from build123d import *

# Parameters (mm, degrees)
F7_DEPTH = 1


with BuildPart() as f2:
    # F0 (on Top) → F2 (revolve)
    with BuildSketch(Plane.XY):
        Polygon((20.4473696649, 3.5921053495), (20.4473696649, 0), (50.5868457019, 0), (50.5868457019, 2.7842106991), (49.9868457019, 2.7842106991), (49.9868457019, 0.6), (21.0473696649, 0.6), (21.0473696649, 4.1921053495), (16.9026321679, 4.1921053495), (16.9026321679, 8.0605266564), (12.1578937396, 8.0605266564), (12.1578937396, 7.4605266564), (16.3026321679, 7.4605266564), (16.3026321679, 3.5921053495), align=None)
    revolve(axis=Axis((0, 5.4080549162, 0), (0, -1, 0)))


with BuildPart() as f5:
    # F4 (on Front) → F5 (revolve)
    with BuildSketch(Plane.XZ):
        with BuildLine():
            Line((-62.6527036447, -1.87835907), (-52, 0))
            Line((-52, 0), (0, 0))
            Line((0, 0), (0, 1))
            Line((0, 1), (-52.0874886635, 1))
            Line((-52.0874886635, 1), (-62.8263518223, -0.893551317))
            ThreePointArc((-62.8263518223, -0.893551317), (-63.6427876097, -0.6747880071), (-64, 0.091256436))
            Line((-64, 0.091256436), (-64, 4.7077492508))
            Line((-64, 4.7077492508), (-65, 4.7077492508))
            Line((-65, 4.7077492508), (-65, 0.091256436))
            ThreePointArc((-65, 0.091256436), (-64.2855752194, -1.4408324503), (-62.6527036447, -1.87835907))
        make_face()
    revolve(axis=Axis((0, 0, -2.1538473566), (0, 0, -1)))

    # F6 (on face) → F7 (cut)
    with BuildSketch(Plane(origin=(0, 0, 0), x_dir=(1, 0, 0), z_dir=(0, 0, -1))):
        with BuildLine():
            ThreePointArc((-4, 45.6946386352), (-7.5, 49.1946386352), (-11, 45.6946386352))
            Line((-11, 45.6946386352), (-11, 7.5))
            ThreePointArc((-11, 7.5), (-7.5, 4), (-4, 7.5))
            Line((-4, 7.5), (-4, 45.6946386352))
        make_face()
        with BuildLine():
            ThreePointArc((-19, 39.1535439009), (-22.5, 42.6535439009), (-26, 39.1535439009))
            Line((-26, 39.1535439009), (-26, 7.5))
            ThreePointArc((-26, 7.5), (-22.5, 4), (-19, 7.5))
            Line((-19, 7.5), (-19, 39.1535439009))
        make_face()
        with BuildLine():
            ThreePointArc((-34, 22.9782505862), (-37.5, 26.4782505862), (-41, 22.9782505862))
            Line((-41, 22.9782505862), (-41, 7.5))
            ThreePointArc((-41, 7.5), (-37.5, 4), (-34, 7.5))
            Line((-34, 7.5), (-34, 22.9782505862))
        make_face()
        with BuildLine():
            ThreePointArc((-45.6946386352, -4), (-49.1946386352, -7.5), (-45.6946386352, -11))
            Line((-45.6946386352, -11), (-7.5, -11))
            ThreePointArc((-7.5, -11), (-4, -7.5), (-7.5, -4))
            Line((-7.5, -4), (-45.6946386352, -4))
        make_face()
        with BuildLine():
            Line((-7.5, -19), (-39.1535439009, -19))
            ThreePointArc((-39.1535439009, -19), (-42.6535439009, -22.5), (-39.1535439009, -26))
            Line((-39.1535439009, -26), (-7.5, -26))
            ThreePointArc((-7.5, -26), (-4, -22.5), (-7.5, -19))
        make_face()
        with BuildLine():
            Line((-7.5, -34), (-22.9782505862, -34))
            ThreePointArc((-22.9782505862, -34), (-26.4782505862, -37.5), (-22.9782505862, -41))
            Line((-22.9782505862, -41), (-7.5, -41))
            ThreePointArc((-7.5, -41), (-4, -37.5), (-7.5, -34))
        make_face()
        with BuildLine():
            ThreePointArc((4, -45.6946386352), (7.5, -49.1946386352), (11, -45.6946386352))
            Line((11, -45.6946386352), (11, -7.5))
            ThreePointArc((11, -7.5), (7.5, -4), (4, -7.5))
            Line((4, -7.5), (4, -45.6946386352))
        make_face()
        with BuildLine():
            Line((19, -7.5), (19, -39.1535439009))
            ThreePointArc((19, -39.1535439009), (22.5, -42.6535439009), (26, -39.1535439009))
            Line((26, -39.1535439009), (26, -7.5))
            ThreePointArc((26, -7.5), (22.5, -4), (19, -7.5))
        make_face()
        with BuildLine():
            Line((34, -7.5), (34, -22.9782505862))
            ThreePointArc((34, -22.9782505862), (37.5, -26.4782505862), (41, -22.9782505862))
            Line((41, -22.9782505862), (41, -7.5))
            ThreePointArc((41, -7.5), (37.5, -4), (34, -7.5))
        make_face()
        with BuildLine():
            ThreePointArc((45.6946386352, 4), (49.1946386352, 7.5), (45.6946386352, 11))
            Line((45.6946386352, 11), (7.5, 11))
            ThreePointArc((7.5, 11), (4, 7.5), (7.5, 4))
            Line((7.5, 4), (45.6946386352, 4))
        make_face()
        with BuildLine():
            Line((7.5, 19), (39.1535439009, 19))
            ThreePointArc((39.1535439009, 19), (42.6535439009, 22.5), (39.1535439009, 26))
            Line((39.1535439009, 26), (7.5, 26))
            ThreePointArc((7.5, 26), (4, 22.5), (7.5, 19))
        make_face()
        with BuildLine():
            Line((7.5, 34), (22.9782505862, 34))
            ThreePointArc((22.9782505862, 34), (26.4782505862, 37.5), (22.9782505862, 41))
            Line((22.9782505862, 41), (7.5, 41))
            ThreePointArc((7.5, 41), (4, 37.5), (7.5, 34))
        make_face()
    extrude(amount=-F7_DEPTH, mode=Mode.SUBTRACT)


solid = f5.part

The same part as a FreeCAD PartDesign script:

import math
import FreeCAD as App
import Part
import Sketcher
from FreeCAD import Vector
Q = App.Units.Quantity


def add_polygon(sketch, points):
    """Adds a closed chain of lines whose ends are joined by coincident constraints."""
    first, n = sketch.GeometryCount, len(points)
    for a, b in zip(points, points[1:] + points[:1]):
        sketch.addGeometry(Part.LineSegment(App.Vector(*a, 0), App.Vector(*b, 0)), False)
    for i in range(n):
        sketch.addConstraint(Sketcher.Constraint("Coincident", first + i, 2, first + (i + 1) % n, 1))

doc = App.newDocument("Part")
body = doc.addObject("PartDesign::Body", "Body")

# Sketch on XY plane
sketch1 = body.newObject("Sketcher::SketchObject", "Sketch")
sketch1.AttachmentSupport = (doc.getObject("XY_Plane"), [""])
sketch1.MapMode = "FlatFace"
add_polygon(sketch1, [(20.4, 3.6), (20.4, 0), (50.6, 0), (50.6, 2.8), (50, 2.8), (50, 0.6), (21, 0.6), (21, 4.2), (16.9, 4.2), (16.9, 8.1), (12.2, 8.1), (12.2, 7.5), (16.3, 7.5), (16.3, 3.6)])  # lines 0-13
sketch1.addConstraint(Sketcher.Constraint("Vertical", 0))
sketch1.addConstraint(Sketcher.Constraint("Horizontal", 1))
sketch1.addConstraint(Sketcher.Constraint("Vertical", 2))
sketch1.addConstraint(Sketcher.Constraint("Horizontal", 3))
sketch1.addConstraint(Sketcher.Constraint("Vertical", 4))
sketch1.addConstraint(Sketcher.Constraint("Horizontal", 5))
sketch1.addConstraint(Sketcher.Constraint("Vertical", 6))
sketch1.addConstraint(Sketcher.Constraint("Horizontal", 7))
sketch1.addConstraint(Sketcher.Constraint("Vertical", 8))
sketch1.addConstraint(Sketcher.Constraint("Horizontal", 9))
sketch1.addConstraint(Sketcher.Constraint("Vertical", 10))
sketch1.addConstraint(Sketcher.Constraint("Horizontal", 11))
sketch1.addConstraint(Sketcher.Constraint("Vertical", 12))
sketch1.addConstraint(Sketcher.Constraint("Horizontal", 13))
sketch1.addConstraint(Sketcher.Constraint("PointOnObject", 0, 2, -1))
sketch1.addConstraint(Sketcher.Constraint("Equal", 7, 11))
sketch1.addConstraint(Sketcher.Constraint("Equal", 11, 13))
sketch1.addConstraint(Sketcher.Constraint("Equal", 0, 6))
sketch1.addConstraint(Sketcher.Constraint("Equal", 3, 10))
sketch1.addConstraint(Sketcher.Constraint("Equal", 8, 12))
sketch1.addConstraint(Sketcher.Constraint("DistanceX", 3, 2, 3, 1, 0.6))
sketch1.addConstraint(Sketcher.Constraint("DistanceX", 0, 2, 5, 2, 0.6))
sketch1.addConstraint(Sketcher.Constraint("DistanceX", 9, 2, 9, 1, 4.744738))
sketch1.addConstraint(Sketcher.Constraint("DistanceY", 2, 1, 2, 2, 2.784211))
sketch1.addConstraint(Sketcher.Constraint("DistanceY", 8, 1, 8, 2, 3.868421))
sketch1.addConstraint(Sketcher.Constraint("DistanceX", 1, 1, 1, 2, 30.139476))
sketch1.addConstraint(Sketcher.Constraint("DistanceY", 0, 2, 0, 1, 3.592105))
sketch1.addConstraint(Sketcher.Constraint("DistanceX", -1, 1, 0, 2, 20.44737))
revolution = body.newObject("PartDesign::Revolution", "Revolution")
revolution.Profile = sketch1
revolution.ReferenceAxis = (sketch1, ["V_Axis"])
revolution.Angle = 360
body2 = doc.addObject("PartDesign::Body", "Body001")

# Sketch on XZ plane
sketch2 = body2.newObject("Sketcher::SketchObject", "Sketch001")
sketch2.AttachmentSupport = (doc.getObject("XZ_Plane001"), [""])
sketch2.MapMode = "FlatFace"
sketch2.addGeometry(Part.LineSegment(Vector(-62.7, -1.9, 0), Vector(-52, 0, 0)), False)
sketch2.addGeometry(Part.LineSegment(Vector(-52, 0, 0), Vector(0, 0, 0)), False)
sketch2.addGeometry(Part.LineSegment(Vector(0, 0, 0), Vector(0, 1, 0)), False)
sketch2.addGeometry(Part.LineSegment(Vector(0, 1, 0), Vector(-52.1, 1, 0)), False)
sketch2.addGeometry(Part.LineSegment(Vector(-52.1, 1, 0), Vector(-62.8, -0.9, 0)), False)
sketch2.addGeometry(Part.ArcOfCircle(Part.Circle(Vector(-63, 0.1, 0), Vector(0, 0, 1), 1), math.radians(180), math.radians(280)), False)
sketch2.addGeometry(Part.LineSegment(Vector(-64, 0.1, 0), Vector(-64, 4.7, 0)), False)
sketch2.addGeometry(Part.LineSegment(Vector(-64, 4.7, 0), Vector(-65, 4.7, 0)), False)
sketch2.addGeometry(Part.LineSegment(Vector(-65, 4.7, 0), Vector(-65, 0.1, 0)), False)
sketch2.addGeometry(Part.ArcOfCircle(Part.Circle(Vector(-63, 0.1, 0), Vector(0, 0, 1), 2), math.radians(180), math.radians(280)), False)
sketch2.addConstraint(Sketcher.Constraint("Coincident", 0, 2, 1, 1))
sketch2.addConstraint(Sketcher.Constraint("Coincident", 1, 2, 2, 1))
sketch2.addConstraint(Sketcher.Constraint("Coincident", 2, 2, 3, 1))
sketch2.addConstraint(Sketcher.Constraint("Coincident", 3, 2, 4, 1))
sketch2.addConstraint(Sketcher.Constraint("Tangent", 4, 2, 5, 2))
sketch2.addConstraint(Sketcher.Constraint("Tangent", 5, 1, 6, 1))
sketch2.addConstraint(Sketcher.Constraint("Coincident", 6, 2, 7, 1))
sketch2.addConstraint(Sketcher.Constraint("Coincident", 7, 2, 8, 1))
sketch2.addConstraint(Sketcher.Constraint("Tangent", 8, 2, 9, 1))
sketch2.addConstraint(Sketcher.Constraint("Tangent", 9, 2, 0, 1))
sketch2.addConstraint(Sketcher.Constraint("Horizontal", 1))
sketch2.addConstraint(Sketcher.Constraint("Vertical", 2))
sketch2.addConstraint(Sketcher.Constraint("Horizontal", 3))
sketch2.addConstraint(Sketcher.Constraint("Vertical", 6))
sketch2.addConstraint(Sketcher.Constraint("Horizontal", 7))
sketch2.addConstraint(Sketcher.Constraint("Vertical", 8))
sketch2.addConstraint(Sketcher.Constraint("Coincident", 1, 2, -1, 1))
sketch2.addConstraint(Sketcher.Constraint("Coincident", 9, 3, 5, 3))
sketch2.addConstraint(Sketcher.Constraint("Parallel", 0, 4))
sketch2.addConstraint(Sketcher.Constraint("Equal", 7, 2))
sketch2.addConstraint(Sketcher.Constraint("Radius", 5, 1.0))
sketch2.addConstraint(Sketcher.Constraint("Radius", 9, 2.0))
sketch2.addConstraint(Sketcher.Constraint("DistanceX", 1, 1, 1, 2, 52.0))
sketch2.addConstraint(Sketcher.Constraint("Angle", 0, Q("10 deg")))
sketch2.addConstraint(Sketcher.Constraint("DistanceX", 5, 3, -1, 1, 63.0))
sketch2.addConstraint(Sketcher.Constraint("DistanceY", 4, 2, 6, 2, 5.601301))
revolution2 = body2.newObject("PartDesign::Revolution", "Revolution001")
revolution2.Profile = sketch2
revolution2.ReferenceAxis = (sketch2, ["V_Axis"])
revolution2.Angle = 360

# Sketch on XY plane
sketch3 = body2.newObject("Sketcher::SketchObject", "Sketch002")
sketch3.AttachmentSupport = (doc.getObject("XY_Plane001"), [""])
sketch3.MapMode = "FlatFace"
sketch3.addGeometry(Part.ArcOfCircle(Part.Circle(Vector(-7.5, -45.7, 0), Vector(0, 0, 1), 3.5), math.radians(180), math.radians(360)), False)
sketch3.addGeometry(Part.LineSegment(Vector(-11, -45.7, 0), Vector(-11, -7.5, 0)), False)
sketch3.addGeometry(Part.ArcOfCircle(Part.Circle(Vector(-7.5, -7.5, 0), Vector(0, 0, 1), 3.5), math.radians(0), math.radians(180)), False)
sketch3.addGeometry(Part.LineSegment(Vector(-4, -7.5, 0), Vector(-4, -45.7, 0)), False)
sketch3.addGeometry(Part.ArcOfCircle(Part.Circle(Vector(-22.5, -39.2, 0), Vector(0, 0, 1), 3.5), math.radians(180), math.radians(360)), False)
sketch3.addGeometry(Part.LineSegment(Vector(-26, -39.2, 0), Vector(-26, -7.5, 0)), False)
sketch3.addGeometry(Part.ArcOfCircle(Part.Circle(Vector(-22.5, -7.5, 0), Vector(0, 0, 1), 3.5), math.radians(0), math.radians(180)), False)
sketch3.addGeometry(Part.LineSegment(Vector(-19, -7.5, 0), Vector(-19, -39.2, 0)), False)
sketch3.addGeometry(Part.ArcOfCircle(Part.Circle(Vector(-37.5, -23, 0), Vector(0, 0, 1), 3.5), math.radians(180), math.radians(360)), False)
sketch3.addGeometry(Part.LineSegment(Vector(-41, -23, 0), Vector(-41, -7.5, 0)), False)
sketch3.addGeometry(Part.ArcOfCircle(Part.Circle(Vector(-37.5, -7.5, 0), Vector(0, 0, 1), 3.5), math.radians(0), math.radians(180)), False)
sketch3.addGeometry(Part.LineSegment(Vector(-34, -7.5, 0), Vector(-34, -23, 0)), False)
sketch3.addGeometry(Part.ArcOfCircle(Part.Circle(Vector(-45.7, 7.5, 0), Vector(0, 0, 1), 3.5), math.radians(90), math.radians(270)), False)
sketch3.addGeometry(Part.LineSegment(Vector(-45.7, 11, 0), Vector(-7.5, 11, 0)), False)
sketch3.addGeometry(Part.ArcOfCircle(Part.Circle(Vector(-7.5, 7.5, 0), Vector(0, 0, 1), 3.5), math.radians(-90), math.radians(90)), False)
sketch3.addGeometry(Part.LineSegment(Vector(-7.5, 4, 0), Vector(-45.7, 4, 0)), False)
sketch3.addGeometry(Part.LineSegment(Vector(-7.5, 19, 0), Vector(-39.2, 19, 0)), False)
sketch3.addGeometry(Part.ArcOfCircle(Part.Circle(Vector(-39.2, 22.5, 0), Vector(0, 0, 1), 3.5), math.radians(90), math.radians(270)), False)
sketch3.addGeometry(Part.LineSegment(Vector(-39.2, 26, 0), Vector(-7.5, 26, 0)), False)
sketch3.addGeometry(Part.ArcOfCircle(Part.Circle(Vector(-7.5, 22.5, 0), Vector(0, 0, 1), 3.5), math.radians(-90), math.radians(90)), False)
sketch3.addGeometry(Part.LineSegment(Vector(-7.5, 34, 0), Vector(-23, 34, 0)), False)
sketch3.addGeometry(Part.ArcOfCircle(Part.Circle(Vector(-23, 37.5, 0), Vector(0, 0, 1), 3.5), math.radians(90), math.radians(270)), False)
sketch3.addGeometry(Part.LineSegment(Vector(-23, 41, 0), Vector(-7.5, 41, 0)), False)
sketch3.addGeometry(Part.ArcOfCircle(Part.Circle(Vector(-7.5, 37.5, 0), Vector(0, 0, 1), 3.5), math.radians(-90), math.radians(90)), False)
sketch3.addGeometry(Part.ArcOfCircle(Part.Circle(Vector(7.5, 45.7, 0), Vector(0, 0, 1), 3.5), math.radians(0), math.radians(180)), False)
sketch3.addGeometry(Part.LineSegment(Vector(11, 45.7, 0), Vector(11, 7.5, 0)), False)
sketch3.addGeometry(Part.ArcOfCircle(Part.Circle(Vector(7.5, 7.5, 0), Vector(0, 0, 1), 3.5), math.radians(180), math.radians(360)), False)
sketch3.addGeometry(Part.LineSegment(Vector(4, 7.5, 0), Vector(4, 45.7, 0)), False)
sketch3.addGeometry(Part.LineSegment(Vector(19, 7.5, 0), Vector(19, 39.2, 0)), False)
sketch3.addGeometry(Part.ArcOfCircle(Part.Circle(Vector(22.5, 39.2, 0), Vector(0, 0, 1), 3.5), math.radians(0), math.radians(180)), False)
sketch3.addGeometry(Part.LineSegment(Vector(26, 39.2, 0), Vector(26, 7.5, 0)), False)
sketch3.addGeometry(Part.ArcOfCircle(Part.Circle(Vector(22.5, 7.5, 0), Vector(0, 0, 1), 3.5), math.radians(180), math.radians(360)), False)
sketch3.addGeometry(Part.LineSegment(Vector(34, 7.5, 0), Vector(34, 23, 0)), False)
sketch3.addGeometry(Part.ArcOfCircle(Part.Circle(Vector(37.5, 23, 0), Vector(0, 0, 1), 3.5), math.radians(0), math.radians(180)), False)
sketch3.addGeometry(Part.LineSegment(Vector(41, 23, 0), Vector(41, 7.5, 0)), False)
sketch3.addGeometry(Part.ArcOfCircle(Part.Circle(Vector(37.5, 7.5, 0), Vector(0, 0, 1), 3.5), math.radians(180), math.radians(360)), False)
sketch3.addGeometry(Part.ArcOfCircle(Part.Circle(Vector(45.7, -7.5, 0), Vector(0, 0, 1), 3.5), math.radians(-90), math.radians(90)), False)
sketch3.addGeometry(Part.LineSegment(Vector(45.7, -11, 0), Vector(7.5, -11, 0)), False)
sketch3.addGeometry(Part.ArcOfCircle(Part.Circle(Vector(7.5, -7.5, 0), Vector(0, 0, 1), 3.5), math.radians(90), math.radians(270)), False)
sketch3.addGeometry(Part.LineSegment(Vector(7.5, -4, 0), Vector(45.7, -4, 0)), False)
sketch3.addGeometry(Part.LineSegment(Vector(7.5, -19, 0), Vector(39.2, -19, 0)), False)
sketch3.addGeometry(Part.ArcOfCircle(Part.Circle(Vector(39.2, -22.5, 0), Vector(0, 0, 1), 3.5), math.radians(-90), math.radians(90)), False)
sketch3.addGeometry(Part.LineSegment(Vector(39.2, -26, 0), Vector(7.5, -26, 0)), False)
sketch3.addGeometry(Part.ArcOfCircle(Part.Circle(Vector(7.5, -22.5, 0), Vector(0, 0, 1), 3.5), math.radians(90), math.radians(270)), False)
sketch3.addGeometry(Part.LineSegment(Vector(7.5, -34, 0), Vector(23, -34, 0)), False)
sketch3.addGeometry(Part.ArcOfCircle(Part.Circle(Vector(23, -37.5, 0), Vector(0, 0, 1), 3.5), math.radians(-90), math.radians(90)), False)
sketch3.addGeometry(Part.LineSegment(Vector(23, -41, 0), Vector(7.5, -41, 0)), False)
sketch3.addGeometry(Part.ArcOfCircle(Part.Circle(Vector(7.5, -37.5, 0), Vector(0, 0, 1), 3.5), math.radians(90), math.radians(270)), False)
sketch3.addConstraint(Sketcher.Constraint("Tangent", 0, 1, 1, 1))
sketch3.addConstraint(Sketcher.Constraint("Tangent", 1, 2, 2, 2))
sketch3.addConstraint(Sketcher.Constraint("Tangent", 2, 1, 3, 1))
sketch3.addConstraint(Sketcher.Constraint("Tangent", 3, 2, 0, 2))
sketch3.addConstraint(Sketcher.Constraint("Tangent", 4, 1, 5, 1))
sketch3.addConstraint(Sketcher.Constraint("Tangent", 5, 2, 6, 2))
sketch3.addConstraint(Sketcher.Constraint("Tangent", 6, 1, 7, 1))
sketch3.addConstraint(Sketcher.Constraint("Tangent", 7, 2, 4, 2))
sketch3.addConstraint(Sketcher.Constraint("Tangent", 8, 1, 9, 1))
sketch3.addConstraint(Sketcher.Constraint("Tangent", 9, 2, 10, 2))
sketch3.addConstraint(Sketcher.Constraint("Tangent", 10, 1, 11, 1))
sketch3.addConstraint(Sketcher.Constraint("Tangent", 11, 2, 8, 2))
sketch3.addConstraint(Sketcher.Constraint("Tangent", 12, 1, 13, 1))
sketch3.addConstraint(Sketcher.Constraint("Tangent", 13, 2, 14, 2))
sketch3.addConstraint(Sketcher.Constraint("Tangent", 14, 1, 15, 1))
sketch3.addConstraint(Sketcher.Constraint("Tangent", 15, 2, 12, 2))
sketch3.addConstraint(Sketcher.Constraint("Tangent", 16, 2, 17, 2))
sketch3.addConstraint(Sketcher.Constraint("Tangent", 17, 1, 18, 1))
sketch3.addConstraint(Sketcher.Constraint("Tangent", 18, 2, 19, 2))
sketch3.addConstraint(Sketcher.Constraint("Tangent", 19, 1, 16, 1))
sketch3.addConstraint(Sketcher.Constraint("Tangent", 20, 2, 21, 2))
sketch3.addConstraint(Sketcher.Constraint("Tangent", 21, 1, 22, 1))
sketch3.addConstraint(Sketcher.Constraint("Tangent", 22, 2, 23, 2))
sketch3.addConstraint(Sketcher.Constraint("Tangent", 23, 1, 20, 1))
sketch3.addConstraint(Sketcher.Constraint("Tangent", 24, 1, 25, 1))
sketch3.addConstraint(Sketcher.Constraint("Tangent", 25, 2, 26, 2))
sketch3.addConstraint(Sketcher.Constraint("Tangent", 26, 1, 27, 1))
sketch3.addConstraint(Sketcher.Constraint("Tangent", 27, 2, 24, 2))
sketch3.addConstraint(Sketcher.Constraint("Tangent", 28, 2, 29, 2))
sketch3.addConstraint(Sketcher.Constraint("Tangent", 29, 1, 30, 1))
sketch3.addConstraint(Sketcher.Constraint("Tangent", 30, 2, 31, 2))
sketch3.addConstraint(Sketcher.Constraint("Tangent", 31, 1, 28, 1))
sketch3.addConstraint(Sketcher.Constraint("Tangent", 32, 2, 33, 2))
sketch3.addConstraint(Sketcher.Constraint("Tangent", 33, 1, 34, 1))
sketch3.addConstraint(Sketcher.Constraint("Tangent", 34, 2, 35, 2))
sketch3.addConstraint(Sketcher.Constraint("Tangent", 35, 1, 32, 1))
sketch3.addConstraint(Sketcher.Constraint("Tangent", 36, 1, 37, 1))
sketch3.addConstraint(Sketcher.Constraint("Tangent", 37, 2, 38, 2))
sketch3.addConstraint(Sketcher.Constraint("Tangent", 38, 1, 39, 1))
sketch3.addConstraint(Sketcher.Constraint("Tangent", 39, 2, 36, 2))
sketch3.addConstraint(Sketcher.Constraint("Tangent", 40, 2, 41, 2))
sketch3.addConstraint(Sketcher.Constraint("Tangent", 41, 1, 42, 1))
sketch3.addConstraint(Sketcher.Constraint("Tangent", 42, 2, 43, 2))
sketch3.addConstraint(Sketcher.Constraint("Tangent", 43, 1, 40, 1))
sketch3.addConstraint(Sketcher.Constraint("Tangent", 44, 2, 45, 2))
sketch3.addConstraint(Sketcher.Constraint("Tangent", 45, 1, 46, 1))
sketch3.addConstraint(Sketcher.Constraint("Tangent", 46, 2, 47, 2))
sketch3.addConstraint(Sketcher.Constraint("Tangent", 47, 1, 44, 1))
sketch3.addConstraint(Sketcher.Constraint("Vertical", 1))
sketch3.addConstraint(Sketcher.Constraint("Vertical", 3))
sketch3.addConstraint(Sketcher.Constraint("Vertical", 5))
sketch3.addConstraint(Sketcher.Constraint("Vertical", 7))
sketch3.addConstraint(Sketcher.Constraint("Vertical", 9))
sketch3.addConstraint(Sketcher.Constraint("Vertical", 11))
sketch3.addConstraint(Sketcher.Constraint("Horizontal", 13))
sketch3.addConstraint(Sketcher.Constraint("Horizontal", 15))
sketch3.addConstraint(Sketcher.Constraint("Horizontal", 16))
sketch3.addConstraint(Sketcher.Constraint("Horizontal", 18))
sketch3.addConstraint(Sketcher.Constraint("Horizontal", 20))
sketch3.addConstraint(Sketcher.Constraint("Horizontal", 22))
sketch3.addConstraint(Sketcher.Constraint("Vertical", 25))
sketch3.addConstraint(Sketcher.Constraint("Vertical", 27))
sketch3.addConstraint(Sketcher.Constraint("Vertical", 28))
sketch3.addConstraint(Sketcher.Constraint("Vertical", 30))
sketch3.addConstraint(Sketcher.Constraint("Vertical", 32))
sketch3.addConstraint(Sketcher.Constraint("Vertical", 34))
sketch3.addConstraint(Sketcher.Constraint("Horizontal", 37))
sketch3.addConstraint(Sketcher.Constraint("Horizontal", 39))
sketch3.addConstraint(Sketcher.Constraint("Horizontal", 40))
sketch3.addConstraint(Sketcher.Constraint("Horizontal", 42))
sketch3.addConstraint(Sketcher.Constraint("Horizontal", 44))
sketch3.addConstraint(Sketcher.Constraint("Horizontal", 46))
sketch3.addConstraint(Sketcher.Constraint("Equal", 2, 4))
sketch3.addConstraint(Sketcher.Constraint("Equal", 6, 8))
sketch3.addConstraint(Sketcher.Constraint("Equal", 10, 12))
sketch3.addConstraint(Sketcher.Constraint("Equal", 14, 17))
sketch3.addConstraint(Sketcher.Constraint("Equal", 19, 21))
sketch3.addConstraint(Sketcher.Constraint("Equal", 23, 24))
sketch3.addConstraint(Sketcher.Constraint("Equal", 26, 29))
sketch3.addConstraint(Sketcher.Constraint("Equal", 31, 33))
sketch3.addConstraint(Sketcher.Constraint("Equal", 35, 36))
sketch3.addConstraint(Sketcher.Constraint("Equal", 38, 41))
sketch3.addConstraint(Sketcher.Constraint("Equal", 43, 45))
sketch3.addConstraint(Sketcher.Constraint("Symmetric", 0, 3, 24, 3, -1, 1))
sketch3.addConstraint(Sketcher.Constraint("Symmetric", 4, 3, 29, 3, -1, 1))
sketch3.addConstraint(Sketcher.Constraint("Symmetric", 8, 3, 33, 3, -1, 1))
sketch3.addConstraint(Sketcher.Constraint("Symmetric", 12, 3, 36, 3, -1, 1))
sketch3.addConstraint(Sketcher.Constraint("Symmetric", 17, 3, 41, 3, -1, 1))
sketch3.addConstraint(Sketcher.Constraint("Symmetric", 21, 3, 45, 3, -1, 1))
sketch3.addConstraint(Sketcher.Constraint("Symmetric", 14, 3, 26, 3, -2))
sketch3.addConstraint(Sketcher.Constraint("Symmetric", 2, 3, 38, 3, -2))
sketch3.addConstraint(Sketcher.Constraint("Horizontal", 2, 3, 6, 3))
sketch3.addConstraint(Sketcher.Constraint("Horizontal", 6, 3, 10, 3))
sketch3.addConstraint(Sketcher.Constraint("Horizontal", 26, 3, 31, 3))
sketch3.addConstraint(Sketcher.Constraint("Horizontal", 31, 3, 35, 3))
sketch3.addConstraint(Sketcher.Constraint("Vertical", 14, 3, 19, 3))
sketch3.addConstraint(Sketcher.Constraint("Vertical", 19, 3, 23, 3))
sketch3.addConstraint(Sketcher.Constraint("Vertical", 38, 3, 43, 3))
sketch3.addConstraint(Sketcher.Constraint("Vertical", 43, 3, 47, 3))
sketch3.addConstraint(Sketcher.Constraint("Equal", 39, 1))
sketch3.addConstraint(Sketcher.Constraint("Equal", 42, 5))
sketch3.addConstraint(Sketcher.Constraint("Equal", 46, 9))
sketch3.addConstraint(Sketcher.Constraint("Radius", 0, 3.5))
sketch3.addConstraint(Sketcher.Constraint("DistanceX", 0, 1, -1, 1, 11.0))
sketch3.addConstraint(Sketcher.Constraint("DistanceX", 4, 1, -1, 1, 26.0))
sketch3.addConstraint(Sketcher.Constraint("DistanceX", 8, 1, -1, 1, 41.0))
sketch3.addConstraint(Sketcher.Constraint("DistanceY", -1, 1, 12, 1, 11.0))
sketch3.addConstraint(Sketcher.Constraint("DistanceY", -1, 1, 16, 2, 19.0))
sketch3.addConstraint(Sketcher.Constraint("DistanceY", -1, 1, 20, 2, 34.0))
sketch3.addConstraint(Sketcher.Constraint("DistanceX", 13, 1, 13, 2, 38.194639))
sketch3.addConstraint(Sketcher.Constraint("DistanceX", 20, 2, 20, 1, 15.478251))
sketch3.addConstraint(Sketcher.Constraint("DistanceX", 16, 2, 16, 1, 31.653544))
pocket1 = body2.newObject("PartDesign::Pocket", "Pocket")
pocket1.Profile = sketch3
pocket1.Length = 1
pocket1.Reversed = True
body.Visibility = False

doc.recompute()
